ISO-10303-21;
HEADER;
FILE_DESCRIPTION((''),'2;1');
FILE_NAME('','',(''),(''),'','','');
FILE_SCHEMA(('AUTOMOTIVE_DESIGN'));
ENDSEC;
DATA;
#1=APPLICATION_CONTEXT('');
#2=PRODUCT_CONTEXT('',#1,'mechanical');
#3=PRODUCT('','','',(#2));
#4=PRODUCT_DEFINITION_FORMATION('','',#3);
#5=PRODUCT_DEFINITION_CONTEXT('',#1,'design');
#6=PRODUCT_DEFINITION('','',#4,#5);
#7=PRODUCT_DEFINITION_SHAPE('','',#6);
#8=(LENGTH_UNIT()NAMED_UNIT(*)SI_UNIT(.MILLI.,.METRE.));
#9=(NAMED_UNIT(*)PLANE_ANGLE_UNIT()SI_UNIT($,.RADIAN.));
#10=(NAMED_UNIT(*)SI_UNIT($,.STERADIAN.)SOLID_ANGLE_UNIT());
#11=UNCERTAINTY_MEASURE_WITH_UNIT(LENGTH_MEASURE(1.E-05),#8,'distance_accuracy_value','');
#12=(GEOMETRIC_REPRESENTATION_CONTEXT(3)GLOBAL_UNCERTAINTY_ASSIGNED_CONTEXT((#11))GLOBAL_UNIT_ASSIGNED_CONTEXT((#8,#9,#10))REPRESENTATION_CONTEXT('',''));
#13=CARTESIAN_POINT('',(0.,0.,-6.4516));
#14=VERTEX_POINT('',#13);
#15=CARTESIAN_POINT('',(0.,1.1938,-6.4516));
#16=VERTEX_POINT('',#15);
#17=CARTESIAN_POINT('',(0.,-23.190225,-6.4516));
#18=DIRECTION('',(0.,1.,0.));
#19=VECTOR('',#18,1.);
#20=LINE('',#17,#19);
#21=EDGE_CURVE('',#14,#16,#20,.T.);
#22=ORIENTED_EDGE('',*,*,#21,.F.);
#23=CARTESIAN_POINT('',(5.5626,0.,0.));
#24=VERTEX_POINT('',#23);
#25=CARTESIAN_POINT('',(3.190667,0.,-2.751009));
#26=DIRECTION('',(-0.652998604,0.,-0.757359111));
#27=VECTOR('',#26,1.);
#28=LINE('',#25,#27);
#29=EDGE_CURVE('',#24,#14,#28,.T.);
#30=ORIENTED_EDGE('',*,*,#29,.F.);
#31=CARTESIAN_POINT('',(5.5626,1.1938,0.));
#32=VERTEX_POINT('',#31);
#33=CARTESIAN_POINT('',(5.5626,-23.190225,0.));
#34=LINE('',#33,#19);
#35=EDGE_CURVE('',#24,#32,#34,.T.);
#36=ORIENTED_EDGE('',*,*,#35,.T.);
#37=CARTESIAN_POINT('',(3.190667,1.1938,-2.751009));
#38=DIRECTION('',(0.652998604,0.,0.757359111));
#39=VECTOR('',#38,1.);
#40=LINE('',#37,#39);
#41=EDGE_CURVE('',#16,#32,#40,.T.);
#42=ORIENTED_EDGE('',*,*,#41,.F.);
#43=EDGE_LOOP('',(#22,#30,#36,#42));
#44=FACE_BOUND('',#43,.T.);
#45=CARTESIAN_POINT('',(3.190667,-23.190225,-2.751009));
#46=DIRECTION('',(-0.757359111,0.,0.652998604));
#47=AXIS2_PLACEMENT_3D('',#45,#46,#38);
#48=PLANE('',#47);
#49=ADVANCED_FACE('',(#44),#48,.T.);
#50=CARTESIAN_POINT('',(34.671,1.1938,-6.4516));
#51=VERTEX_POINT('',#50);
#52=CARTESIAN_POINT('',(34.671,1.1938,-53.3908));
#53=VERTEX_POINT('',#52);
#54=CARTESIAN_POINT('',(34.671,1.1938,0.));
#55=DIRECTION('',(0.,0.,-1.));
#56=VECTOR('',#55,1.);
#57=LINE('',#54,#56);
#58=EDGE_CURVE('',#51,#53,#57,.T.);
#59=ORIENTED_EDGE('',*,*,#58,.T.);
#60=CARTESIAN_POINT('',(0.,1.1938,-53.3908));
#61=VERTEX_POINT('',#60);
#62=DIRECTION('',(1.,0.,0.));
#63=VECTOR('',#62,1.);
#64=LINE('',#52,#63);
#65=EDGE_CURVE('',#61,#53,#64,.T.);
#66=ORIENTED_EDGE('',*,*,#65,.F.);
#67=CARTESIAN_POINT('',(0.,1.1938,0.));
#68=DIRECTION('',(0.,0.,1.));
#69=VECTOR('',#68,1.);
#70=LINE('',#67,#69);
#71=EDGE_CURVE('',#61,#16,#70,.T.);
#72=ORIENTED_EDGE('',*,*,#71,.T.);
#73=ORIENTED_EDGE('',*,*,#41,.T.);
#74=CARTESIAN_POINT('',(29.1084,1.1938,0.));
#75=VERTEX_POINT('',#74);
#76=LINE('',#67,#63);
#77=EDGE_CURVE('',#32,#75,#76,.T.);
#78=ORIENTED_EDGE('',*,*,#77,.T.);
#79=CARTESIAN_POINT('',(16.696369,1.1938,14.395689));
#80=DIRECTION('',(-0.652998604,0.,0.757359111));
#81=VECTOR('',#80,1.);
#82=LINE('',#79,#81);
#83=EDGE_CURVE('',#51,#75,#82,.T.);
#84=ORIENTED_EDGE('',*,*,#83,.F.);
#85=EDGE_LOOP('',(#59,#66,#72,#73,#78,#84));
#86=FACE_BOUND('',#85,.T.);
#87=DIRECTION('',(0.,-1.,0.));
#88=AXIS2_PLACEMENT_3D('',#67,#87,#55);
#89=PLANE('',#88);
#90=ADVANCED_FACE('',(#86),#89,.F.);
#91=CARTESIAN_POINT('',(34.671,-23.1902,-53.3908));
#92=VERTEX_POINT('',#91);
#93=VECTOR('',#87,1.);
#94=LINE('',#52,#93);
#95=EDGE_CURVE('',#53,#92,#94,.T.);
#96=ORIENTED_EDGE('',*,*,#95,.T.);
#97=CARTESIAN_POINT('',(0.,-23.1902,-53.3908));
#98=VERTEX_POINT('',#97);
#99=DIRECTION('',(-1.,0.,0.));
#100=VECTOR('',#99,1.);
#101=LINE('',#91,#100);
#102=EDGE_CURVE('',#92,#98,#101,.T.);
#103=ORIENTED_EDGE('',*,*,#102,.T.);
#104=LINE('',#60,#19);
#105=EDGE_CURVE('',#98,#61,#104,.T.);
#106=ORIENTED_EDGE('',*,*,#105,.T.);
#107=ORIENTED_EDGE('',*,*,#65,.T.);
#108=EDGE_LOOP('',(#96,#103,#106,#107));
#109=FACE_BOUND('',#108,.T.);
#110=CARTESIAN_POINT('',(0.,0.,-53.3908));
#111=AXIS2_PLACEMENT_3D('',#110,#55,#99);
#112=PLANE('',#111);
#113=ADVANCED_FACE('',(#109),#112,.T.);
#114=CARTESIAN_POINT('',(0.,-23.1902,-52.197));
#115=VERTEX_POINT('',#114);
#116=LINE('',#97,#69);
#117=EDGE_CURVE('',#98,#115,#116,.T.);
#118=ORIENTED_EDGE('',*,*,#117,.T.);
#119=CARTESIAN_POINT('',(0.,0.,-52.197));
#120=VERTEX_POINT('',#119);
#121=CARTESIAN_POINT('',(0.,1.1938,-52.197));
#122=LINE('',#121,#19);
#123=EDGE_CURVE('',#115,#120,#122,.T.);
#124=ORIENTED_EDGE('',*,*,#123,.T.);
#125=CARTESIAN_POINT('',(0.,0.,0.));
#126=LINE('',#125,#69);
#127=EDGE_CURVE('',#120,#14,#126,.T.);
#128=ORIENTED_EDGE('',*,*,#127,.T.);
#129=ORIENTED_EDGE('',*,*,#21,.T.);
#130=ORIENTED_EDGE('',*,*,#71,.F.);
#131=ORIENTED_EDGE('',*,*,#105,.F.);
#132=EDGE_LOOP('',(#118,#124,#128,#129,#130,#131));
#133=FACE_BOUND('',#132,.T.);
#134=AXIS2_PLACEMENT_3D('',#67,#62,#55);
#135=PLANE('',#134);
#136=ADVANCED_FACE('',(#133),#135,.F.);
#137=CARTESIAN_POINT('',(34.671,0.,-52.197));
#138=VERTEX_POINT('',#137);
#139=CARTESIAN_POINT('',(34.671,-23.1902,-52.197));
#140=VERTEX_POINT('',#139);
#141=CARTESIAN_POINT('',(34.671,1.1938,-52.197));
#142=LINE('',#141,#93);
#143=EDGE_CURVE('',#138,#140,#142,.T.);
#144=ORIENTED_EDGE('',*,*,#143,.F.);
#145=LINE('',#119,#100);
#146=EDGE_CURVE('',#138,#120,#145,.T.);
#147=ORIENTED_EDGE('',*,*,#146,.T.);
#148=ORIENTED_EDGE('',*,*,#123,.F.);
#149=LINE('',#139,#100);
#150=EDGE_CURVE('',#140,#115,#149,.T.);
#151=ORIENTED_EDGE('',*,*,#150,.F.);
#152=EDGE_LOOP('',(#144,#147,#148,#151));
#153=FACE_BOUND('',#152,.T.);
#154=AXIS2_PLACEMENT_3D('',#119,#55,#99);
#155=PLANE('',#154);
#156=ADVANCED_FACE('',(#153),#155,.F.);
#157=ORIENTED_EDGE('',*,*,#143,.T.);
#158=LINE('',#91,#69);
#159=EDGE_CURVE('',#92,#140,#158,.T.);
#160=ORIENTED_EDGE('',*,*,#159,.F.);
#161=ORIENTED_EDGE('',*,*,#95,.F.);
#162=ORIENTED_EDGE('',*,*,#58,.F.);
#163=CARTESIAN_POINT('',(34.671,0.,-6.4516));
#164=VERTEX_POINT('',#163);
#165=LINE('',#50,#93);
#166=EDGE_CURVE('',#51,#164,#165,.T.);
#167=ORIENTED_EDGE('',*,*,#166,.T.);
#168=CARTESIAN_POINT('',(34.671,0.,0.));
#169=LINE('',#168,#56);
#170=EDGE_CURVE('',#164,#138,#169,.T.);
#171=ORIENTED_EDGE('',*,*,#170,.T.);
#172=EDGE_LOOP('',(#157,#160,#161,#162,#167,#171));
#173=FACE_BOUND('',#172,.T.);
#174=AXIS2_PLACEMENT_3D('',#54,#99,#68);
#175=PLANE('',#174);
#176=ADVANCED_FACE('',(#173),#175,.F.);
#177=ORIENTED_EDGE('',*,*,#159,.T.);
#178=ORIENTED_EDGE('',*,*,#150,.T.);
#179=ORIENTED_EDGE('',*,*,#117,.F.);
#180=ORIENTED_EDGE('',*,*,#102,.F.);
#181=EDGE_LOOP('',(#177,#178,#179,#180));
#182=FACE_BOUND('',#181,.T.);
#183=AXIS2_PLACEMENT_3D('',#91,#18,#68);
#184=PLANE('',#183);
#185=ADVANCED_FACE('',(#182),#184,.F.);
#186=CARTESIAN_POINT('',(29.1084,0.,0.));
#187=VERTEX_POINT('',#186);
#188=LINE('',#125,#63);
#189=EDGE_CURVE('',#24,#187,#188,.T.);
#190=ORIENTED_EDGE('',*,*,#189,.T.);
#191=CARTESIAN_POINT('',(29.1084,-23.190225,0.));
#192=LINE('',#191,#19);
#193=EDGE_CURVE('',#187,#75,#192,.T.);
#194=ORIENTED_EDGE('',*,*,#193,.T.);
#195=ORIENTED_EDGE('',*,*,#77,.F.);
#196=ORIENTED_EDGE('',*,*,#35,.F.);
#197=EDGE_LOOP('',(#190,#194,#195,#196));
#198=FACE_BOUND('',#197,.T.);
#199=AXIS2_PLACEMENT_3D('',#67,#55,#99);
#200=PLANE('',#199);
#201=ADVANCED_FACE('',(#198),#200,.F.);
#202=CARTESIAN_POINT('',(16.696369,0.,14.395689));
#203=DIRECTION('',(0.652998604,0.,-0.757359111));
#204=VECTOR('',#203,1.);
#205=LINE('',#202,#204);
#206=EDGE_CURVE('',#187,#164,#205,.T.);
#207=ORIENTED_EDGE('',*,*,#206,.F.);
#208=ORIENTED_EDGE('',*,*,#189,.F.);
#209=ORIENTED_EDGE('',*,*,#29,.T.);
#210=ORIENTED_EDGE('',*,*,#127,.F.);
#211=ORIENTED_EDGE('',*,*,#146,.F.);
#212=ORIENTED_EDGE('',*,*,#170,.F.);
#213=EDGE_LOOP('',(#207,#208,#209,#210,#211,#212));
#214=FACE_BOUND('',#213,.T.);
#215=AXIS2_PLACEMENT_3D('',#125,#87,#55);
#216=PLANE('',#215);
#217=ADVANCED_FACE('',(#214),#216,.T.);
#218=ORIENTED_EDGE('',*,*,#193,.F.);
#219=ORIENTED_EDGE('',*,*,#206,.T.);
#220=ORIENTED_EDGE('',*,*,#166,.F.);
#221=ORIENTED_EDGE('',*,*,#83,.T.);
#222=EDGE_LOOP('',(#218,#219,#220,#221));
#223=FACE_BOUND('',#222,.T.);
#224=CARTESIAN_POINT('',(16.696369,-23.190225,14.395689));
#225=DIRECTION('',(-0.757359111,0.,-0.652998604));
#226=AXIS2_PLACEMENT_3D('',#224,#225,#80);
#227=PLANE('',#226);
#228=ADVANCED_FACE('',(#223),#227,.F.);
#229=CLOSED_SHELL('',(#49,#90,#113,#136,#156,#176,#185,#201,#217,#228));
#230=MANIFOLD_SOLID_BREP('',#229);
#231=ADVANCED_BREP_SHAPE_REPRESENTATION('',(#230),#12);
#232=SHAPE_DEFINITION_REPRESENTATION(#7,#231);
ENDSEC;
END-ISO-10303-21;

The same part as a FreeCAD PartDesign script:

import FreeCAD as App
import Part
import Sketcher
Q = App.Units.Quantity

doc = App.newDocument("Part")
params = doc.addObject("Spreadsheet::Sheet", "Params")
for row, (alias, value) in enumerate([
    ("sketch1_width", "1.365 in"),
    ("sketch1_height", "2.055 in"),
    ("pad1_length", "0.047 in"),
    ("sketch2_height", "0.96 in"),
    ("sketch2_width", "1.365 in"),
    ("pad2_length", "0.047 in"),
    ("sketch3_width", "0.219 in"),
    ("sketch3_height", "0.254 in"),
], start=1):
    params.set(f"A{row}", alias)
    params.set(f"B{row}", "=" + value)
    params.setAlias(f"B{row}", alias)

body = doc.addObject("PartDesign::Body", "Body")

# Sketch on XZ plane
sketch1 = body.newObject("Sketcher::SketchObject", "Sketch")
sketch1.AttachmentSupport = (doc.getObject("XZ_Plane"), [""])
sketch1.MapMode = "FlatFace"
sketch1.addGeometry(Part.LineSegment(App.Vector(0, -52.197, 0), App.Vector(0, 0, 0)), False)
sketch1.addGeometry(Part.LineSegment(App.Vector(0, 0, 0), App.Vector(34.671, 0, 0)), False)
sketch1.addGeometry(Part.LineSegment(App.Vector(34.671, 0, 0), App.Vector(34.671, -52.197, 0)), False)
sketch1.addGeometry(Part.LineSegment(App.Vector(34.671, -52.197, 0), App.Vector(0, -52.197, 0)), False)
sketch1.addConstraint(Sketcher.Constraint("Coincident", 0, 2, 1, 1))
sketch1.addConstraint(Sketcher.Constraint("Coincident", 1, 2, 2, 1))
sketch1.addConstraint(Sketcher.Constraint("Coincident", 2, 2, 3, 1))
sketch1.addConstraint(Sketcher.Constraint("Coincident", 3, 2, 0, 1))
sketch1.addConstraint(Sketcher.Constraint("Vertical", 0))
sketch1.addConstraint(Sketcher.Constraint("Horizontal", 1))
sketch1.addConstraint(Sketcher.Constraint("Vertical", 2))
sketch1.addConstraint(Sketcher.Constraint("Horizontal", 3))
sketch1.addConstraint(Sketcher.Constraint("Coincident", 0, 2, -1, 1))
sketch1.addConstraint(Sketcher.Constraint("DistanceX", 1, 1, 1, 2, Q("1.365 in")))
sketch1.addConstraint(Sketcher.Constraint("DistanceY", 0, 1, 0, 2, Q("2.055 in")))
sketch1.setExpression("Constraints[9]", "Params.sketch1_width")
sketch1.setExpression("Constraints[10]", "Params.sketch1_height")
pad1 = body.newObject("PartDesign::Pad", "Pad")
pad1.Profile = sketch1
pad1.setExpression("Length", "Params.pad1_length")
pad1.Reversed = True

# Sketch on XY plane
sketch2 = body.newObject("Sketcher::SketchObject", "Sketch001")
sketch2.AttachmentSupport = (doc.getObject("XY_Plane"), [""])
sketch2.MapMode = "FlatFace"
sketch2.AttachmentOffset = App.Placement(App.Vector(0, 0, -2.055 * 25.4), App.Rotation())
sketch2.addGeometry(Part.LineSegment(App.Vector(34.671, 1.1938, 0), App.Vector(34.671, -23.1902, 0)), False)
sketch2.addGeometry(Part.LineSegment(App.Vector(34.671, -23.1902, 0), App.Vector(0, -23.1902, 0)), False)
sketch2.addGeometry(Part.LineSegment(App.Vector(0, -23.1902, 0), App.Vector(0, 1.1938, 0)), False)
sketch2.addGeometry(Part.LineSegment(App.Vector(0, 1.1938, 0), App.Vector(34.671, 1.1938, 0)), False)
sketch2.addConstraint(Sketcher.Constraint("Coincident", 0, 2, 1, 1))
sketch2.addConstraint(Sketcher.Constraint("Coincident", 1, 2, 2, 1))
sketch2.addConstraint(Sketcher.Constraint("Coincident", 2, 2, 3, 1))
sketch2.addConstraint(Sketcher.Constraint("Coincident", 3, 2, 0, 1))
sketch2.addConstraint(Sketcher.Constraint("Vertical", 0))
sketch2.addConstraint(Sketcher.Constraint("Horizontal", 1))
sketch2.addConstraint(Sketcher.Constraint("Vertical", 2))
sketch2.addConstraint(Sketcher.Constraint("Horizontal", 3))
sketch2.addConstraint(Sketcher.Constraint("PointOnObject", 1, 2, -2))
sketch2.addConstraint(Sketcher.Constraint("DistanceY", 0, 2, 0, 1, Q("0.96 in")))
sketch2.addConstraint(Sketcher.Constraint("DistanceX", 1, 2, 1, 1, Q("1.365 in")))
sketch2.addConstraint(Sketcher.Constraint("DistanceY", 0, 2, -1, 1, Q("0.913 in")))
sketch2.setExpression("Constraints[9]", "Params.sketch2_height")
sketch2.setExpression("Constraints[10]", "Params.sketch2_width")
pad2 = body.newObject("PartDesign::Pad", "Pad001")
pad2.Profile = sketch2
pad2.setExpression("Length", "Params.pad2_length")
pad2.Reversed = True

# Sketch on XZ plane
sketch3 = body.newObject("Sketcher::SketchObject", "Sketch002")
sketch3.AttachmentSupport = (doc.getObject("XZ_Plane"), [""])
sketch3.MapMode = "FlatFace"
sketch3.addGeometry(Part.LineSegment(App.Vector(0, -6.4516, 0), App.Vector(5.5626, 0, 0)), False)
sketch3.addGeometry(Part.LineSegment(App.Vector(5.5626, 0, 0), App.Vector(0, 0, 0)), False)
sketch3.addGeometry(Part.LineSegment(App.Vector(0, 0, 0), App.Vector(0, -6.4516, 0)), False)
sketch3.addGeometry(Part.LineSegment(App.Vector(29.1084, 0, 0), App.Vector(34.671, -6.4516, 0)), False)
sketch3.addGeometry(Part.LineSegment(App.Vector(34.671, -6.4516, 0), App.Vector(34.671, 0, 0)), False)
sketch3.addGeometry(Part.LineSegment(App.Vector(34.671, 0, 0), App.Vector(29.1084, 0, 0)), False)
sketch3.addConstraint(Sketcher.Constraint("Coincident", 0, 2, 1, 1))
sketch3.addConstraint(Sketcher.Constraint("Coincident", 1, 2, 2, 1))
sketch3.addConstraint(Sketcher.Constraint("Coincident", 2, 2, 0, 1))
sketch3.addConstraint(Sketcher.Constraint("Coincident", 3, 2, 4, 1))
sketch3.addConstraint(Sketcher.Constraint("Coincident", 4, 2, 5, 1))
sketch3.addConstraint(Sketcher.Constraint("Coincident", 5, 2, 3, 1))
sketch3.addConstraint(Sketcher.Constraint("Horizontal", 1))
sketch3.addConstraint(Sketcher.Constraint("Vertical", 2))
sketch3.addConstraint(Sketcher.Constraint("Vertical", 4))
sketch3.addConstraint(Sketcher.Constraint("Horizontal", 5))
sketch3.addConstraint(Sketcher.Constraint("Coincident", 1, 2, -1, 1))
sketch3.addConstraint(Sketcher.Constraint("PointOnObject", 4, 2, -1))
sketch3.addConstraint(Sketcher.Constraint("Horizontal", 2, 2, 3, 2))
sketch3.addConstraint(Sketcher.Constraint("Equal", 1, 5))
sketch3.addConstraint(Sketcher.Constraint("DistanceX", 1, 2, 1, 1, Q("0.219 in")))
sketch3.addConstraint(Sketcher.Constraint("DistanceY", 2, 2, 2, 1, Q("0.254 in")))
sketch3.addConstraint(Sketcher.Constraint("DistanceX", -1, 1, 3, 2, Q("1.365 in")))
sketch3.setExpression("Constraints[14]", "Params.sketch3_width")
sketch3.setExpression("Constraints[15]", "Params.sketch3_height")
pocket1 = body.newObject("PartDesign::Pocket", "Pocket")
pocket1.Profile = sketch3
pocket1.Type = "ThroughAll"
pocket1.Midplane = True

doc.recompute()
